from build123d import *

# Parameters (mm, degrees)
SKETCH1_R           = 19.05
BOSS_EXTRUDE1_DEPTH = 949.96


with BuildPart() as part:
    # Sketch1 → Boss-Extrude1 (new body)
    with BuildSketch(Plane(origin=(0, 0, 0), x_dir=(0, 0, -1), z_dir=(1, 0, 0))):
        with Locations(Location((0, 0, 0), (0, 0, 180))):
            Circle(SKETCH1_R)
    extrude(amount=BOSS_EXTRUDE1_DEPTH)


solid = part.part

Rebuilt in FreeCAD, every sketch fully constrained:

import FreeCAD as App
import Part
import Sketcher
Q = App.Units.Quantity

doc = App.newDocument("Part")
body = doc.addObject("PartDesign::Body", "Body")

sketch1 = body.newObject("Sketcher::SketchObject", "Sketch")
sketch1.AttachmentSupport = (doc.getObject("YZ_Plane"), [""])
sketch1.MapMode = "FlatFace"
sketch1.addGeometry(Part.Circle(App.Vector(0, 0, 0), App.Vector(0, 0, 1), 19), False)
sketch1.addConstraint(Sketcher.Constraint("Coincident", 0, 3, -1, 1))
sketch1.addConstraint(Sketcher.Constraint("Diameter", 0, Q("1.5 in")))
pad1 = body.newObject("PartDesign::Pad", "Pad")
pad1.Profile = sketch1
pad1.Length = Q("37.4 in")

doc.recompute()
